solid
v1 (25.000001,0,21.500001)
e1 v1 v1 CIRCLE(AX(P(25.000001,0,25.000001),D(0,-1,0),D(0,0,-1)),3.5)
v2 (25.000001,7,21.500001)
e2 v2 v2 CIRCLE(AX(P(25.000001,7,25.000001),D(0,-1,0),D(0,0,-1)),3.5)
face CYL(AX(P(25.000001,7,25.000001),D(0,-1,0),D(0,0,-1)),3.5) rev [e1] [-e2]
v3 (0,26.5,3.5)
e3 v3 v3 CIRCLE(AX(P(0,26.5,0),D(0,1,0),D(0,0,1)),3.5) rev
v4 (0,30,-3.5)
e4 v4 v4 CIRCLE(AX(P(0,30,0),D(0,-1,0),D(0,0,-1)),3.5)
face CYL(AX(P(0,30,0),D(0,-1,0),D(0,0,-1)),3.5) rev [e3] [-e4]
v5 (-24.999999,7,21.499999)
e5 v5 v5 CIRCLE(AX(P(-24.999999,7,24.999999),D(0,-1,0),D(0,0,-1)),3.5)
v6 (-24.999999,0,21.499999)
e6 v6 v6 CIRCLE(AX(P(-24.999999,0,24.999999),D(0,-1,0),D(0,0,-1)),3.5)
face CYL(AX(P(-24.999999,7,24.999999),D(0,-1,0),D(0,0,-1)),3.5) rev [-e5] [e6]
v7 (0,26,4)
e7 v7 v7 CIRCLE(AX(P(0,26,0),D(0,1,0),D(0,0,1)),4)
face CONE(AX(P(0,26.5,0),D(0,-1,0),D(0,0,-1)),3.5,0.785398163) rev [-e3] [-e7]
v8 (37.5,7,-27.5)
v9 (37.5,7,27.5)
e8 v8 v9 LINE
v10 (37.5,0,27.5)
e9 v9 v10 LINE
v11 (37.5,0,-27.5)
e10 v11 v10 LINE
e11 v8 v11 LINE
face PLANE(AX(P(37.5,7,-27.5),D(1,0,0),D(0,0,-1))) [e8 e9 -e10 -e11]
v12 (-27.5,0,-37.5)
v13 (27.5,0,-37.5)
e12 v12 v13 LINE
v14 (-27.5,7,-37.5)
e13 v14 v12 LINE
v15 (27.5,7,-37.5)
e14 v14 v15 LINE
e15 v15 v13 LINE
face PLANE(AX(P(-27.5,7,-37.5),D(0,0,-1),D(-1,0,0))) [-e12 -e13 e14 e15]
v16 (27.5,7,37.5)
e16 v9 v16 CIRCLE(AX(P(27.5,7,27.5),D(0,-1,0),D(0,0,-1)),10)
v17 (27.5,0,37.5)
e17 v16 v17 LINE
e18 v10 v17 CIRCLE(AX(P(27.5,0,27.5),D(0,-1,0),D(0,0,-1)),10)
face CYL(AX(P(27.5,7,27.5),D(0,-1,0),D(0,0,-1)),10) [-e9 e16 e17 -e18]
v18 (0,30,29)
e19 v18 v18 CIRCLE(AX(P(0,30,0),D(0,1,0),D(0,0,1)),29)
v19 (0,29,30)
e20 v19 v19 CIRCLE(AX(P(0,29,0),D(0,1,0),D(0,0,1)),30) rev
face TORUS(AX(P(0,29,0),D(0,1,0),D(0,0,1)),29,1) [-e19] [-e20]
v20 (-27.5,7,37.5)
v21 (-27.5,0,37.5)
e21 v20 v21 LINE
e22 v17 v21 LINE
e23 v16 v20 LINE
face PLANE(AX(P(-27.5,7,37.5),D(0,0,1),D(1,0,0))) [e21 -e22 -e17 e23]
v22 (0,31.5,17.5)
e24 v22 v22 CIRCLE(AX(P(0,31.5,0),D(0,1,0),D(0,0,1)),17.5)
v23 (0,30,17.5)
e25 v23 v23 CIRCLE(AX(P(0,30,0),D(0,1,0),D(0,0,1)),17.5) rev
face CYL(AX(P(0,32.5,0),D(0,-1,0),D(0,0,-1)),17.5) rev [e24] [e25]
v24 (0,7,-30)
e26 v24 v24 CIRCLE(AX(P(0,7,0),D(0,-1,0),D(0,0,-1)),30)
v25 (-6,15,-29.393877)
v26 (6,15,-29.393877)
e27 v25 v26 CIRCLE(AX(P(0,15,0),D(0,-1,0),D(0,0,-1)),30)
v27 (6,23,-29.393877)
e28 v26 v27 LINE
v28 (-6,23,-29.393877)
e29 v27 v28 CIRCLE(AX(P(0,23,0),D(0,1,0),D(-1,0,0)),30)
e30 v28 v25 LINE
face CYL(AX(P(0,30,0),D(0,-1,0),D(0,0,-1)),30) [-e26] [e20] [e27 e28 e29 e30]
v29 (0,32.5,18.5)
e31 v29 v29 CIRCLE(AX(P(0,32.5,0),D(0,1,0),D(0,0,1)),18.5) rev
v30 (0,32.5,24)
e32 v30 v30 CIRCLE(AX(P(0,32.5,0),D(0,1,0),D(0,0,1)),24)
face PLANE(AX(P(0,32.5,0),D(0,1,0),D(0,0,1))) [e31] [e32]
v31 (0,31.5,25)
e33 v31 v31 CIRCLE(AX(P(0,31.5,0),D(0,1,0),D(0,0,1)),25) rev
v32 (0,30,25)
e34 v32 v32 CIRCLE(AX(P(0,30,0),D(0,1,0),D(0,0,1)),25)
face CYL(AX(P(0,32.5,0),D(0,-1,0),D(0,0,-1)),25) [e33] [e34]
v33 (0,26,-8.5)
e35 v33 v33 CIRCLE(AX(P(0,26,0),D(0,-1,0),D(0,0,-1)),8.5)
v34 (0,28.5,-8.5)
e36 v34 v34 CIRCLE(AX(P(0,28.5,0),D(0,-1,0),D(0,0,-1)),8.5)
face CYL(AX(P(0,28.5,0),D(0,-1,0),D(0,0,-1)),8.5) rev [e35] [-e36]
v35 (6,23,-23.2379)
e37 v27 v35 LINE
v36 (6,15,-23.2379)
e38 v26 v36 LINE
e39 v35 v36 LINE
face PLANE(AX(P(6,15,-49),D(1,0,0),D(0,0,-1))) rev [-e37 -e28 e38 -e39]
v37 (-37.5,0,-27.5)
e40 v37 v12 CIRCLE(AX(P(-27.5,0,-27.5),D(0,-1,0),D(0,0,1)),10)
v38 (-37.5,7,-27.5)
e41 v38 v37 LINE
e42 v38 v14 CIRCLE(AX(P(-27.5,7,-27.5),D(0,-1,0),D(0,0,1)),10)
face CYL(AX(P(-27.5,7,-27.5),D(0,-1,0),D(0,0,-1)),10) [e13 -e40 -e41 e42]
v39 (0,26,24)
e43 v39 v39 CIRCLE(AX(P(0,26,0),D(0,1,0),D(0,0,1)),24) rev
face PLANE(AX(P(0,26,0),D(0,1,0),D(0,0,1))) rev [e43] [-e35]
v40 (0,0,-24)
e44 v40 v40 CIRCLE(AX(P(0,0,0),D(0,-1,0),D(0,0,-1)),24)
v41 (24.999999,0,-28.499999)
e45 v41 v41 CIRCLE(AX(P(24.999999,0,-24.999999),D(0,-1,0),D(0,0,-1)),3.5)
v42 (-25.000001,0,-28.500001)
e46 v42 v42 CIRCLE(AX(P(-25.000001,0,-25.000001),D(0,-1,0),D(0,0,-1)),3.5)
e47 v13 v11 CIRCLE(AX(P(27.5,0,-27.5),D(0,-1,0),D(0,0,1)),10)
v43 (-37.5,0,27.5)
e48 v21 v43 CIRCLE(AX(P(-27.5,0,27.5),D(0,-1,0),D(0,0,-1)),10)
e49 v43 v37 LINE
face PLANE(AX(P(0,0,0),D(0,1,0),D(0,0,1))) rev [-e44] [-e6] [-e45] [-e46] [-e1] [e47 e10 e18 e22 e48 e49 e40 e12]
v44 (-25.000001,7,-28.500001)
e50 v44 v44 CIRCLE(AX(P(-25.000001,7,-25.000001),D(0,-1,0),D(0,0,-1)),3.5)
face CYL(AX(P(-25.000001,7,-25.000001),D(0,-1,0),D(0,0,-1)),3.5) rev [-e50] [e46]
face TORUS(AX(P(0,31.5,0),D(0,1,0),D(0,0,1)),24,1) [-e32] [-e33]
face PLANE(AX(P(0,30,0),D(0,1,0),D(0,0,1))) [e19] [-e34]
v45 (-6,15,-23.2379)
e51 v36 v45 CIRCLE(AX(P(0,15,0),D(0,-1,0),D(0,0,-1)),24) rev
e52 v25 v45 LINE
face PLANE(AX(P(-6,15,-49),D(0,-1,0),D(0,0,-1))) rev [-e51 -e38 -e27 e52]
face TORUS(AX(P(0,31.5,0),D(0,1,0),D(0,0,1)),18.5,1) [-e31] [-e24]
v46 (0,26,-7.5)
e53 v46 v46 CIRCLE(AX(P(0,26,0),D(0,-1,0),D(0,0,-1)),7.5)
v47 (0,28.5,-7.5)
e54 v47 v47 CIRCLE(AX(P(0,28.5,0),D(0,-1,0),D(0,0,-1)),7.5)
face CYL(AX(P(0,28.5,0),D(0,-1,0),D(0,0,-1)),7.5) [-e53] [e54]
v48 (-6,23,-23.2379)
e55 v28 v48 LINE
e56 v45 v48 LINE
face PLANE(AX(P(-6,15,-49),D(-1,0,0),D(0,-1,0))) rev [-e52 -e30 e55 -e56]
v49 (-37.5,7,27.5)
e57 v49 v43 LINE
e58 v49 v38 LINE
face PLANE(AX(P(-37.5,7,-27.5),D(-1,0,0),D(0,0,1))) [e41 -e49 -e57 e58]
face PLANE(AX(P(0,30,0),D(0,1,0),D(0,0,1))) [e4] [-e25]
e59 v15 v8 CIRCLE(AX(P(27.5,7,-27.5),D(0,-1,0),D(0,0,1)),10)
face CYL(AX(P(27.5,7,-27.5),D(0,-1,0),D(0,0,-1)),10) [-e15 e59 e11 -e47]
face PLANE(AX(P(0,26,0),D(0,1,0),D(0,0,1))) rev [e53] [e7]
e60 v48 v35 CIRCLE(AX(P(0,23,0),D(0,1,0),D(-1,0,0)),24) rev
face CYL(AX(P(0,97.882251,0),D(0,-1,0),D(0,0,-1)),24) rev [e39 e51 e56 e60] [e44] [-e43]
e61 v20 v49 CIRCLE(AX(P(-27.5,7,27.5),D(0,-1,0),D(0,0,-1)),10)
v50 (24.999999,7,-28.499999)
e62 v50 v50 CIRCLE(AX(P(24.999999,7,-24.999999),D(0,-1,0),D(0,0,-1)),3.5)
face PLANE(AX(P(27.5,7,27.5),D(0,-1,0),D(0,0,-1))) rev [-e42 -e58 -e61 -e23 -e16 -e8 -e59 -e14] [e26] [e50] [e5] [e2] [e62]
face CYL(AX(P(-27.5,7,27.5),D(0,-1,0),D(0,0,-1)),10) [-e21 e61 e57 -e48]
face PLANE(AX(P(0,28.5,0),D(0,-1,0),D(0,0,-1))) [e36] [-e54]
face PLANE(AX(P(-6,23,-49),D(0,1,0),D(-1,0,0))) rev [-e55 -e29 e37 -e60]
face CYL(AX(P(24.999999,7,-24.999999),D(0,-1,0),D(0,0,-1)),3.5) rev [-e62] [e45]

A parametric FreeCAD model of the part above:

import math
import FreeCAD as App
import Part
import Sketcher


def edges_at(feature, points):
    """Names of the edges that pass closest to the given points."""
    edges = feature.Shape.Edges
    near = lambda p: min(range(len(edges)), key=lambda i: edges[i].distToShape(Part.Vertex(*p))[0])
    return sorted({f"Edge{near(p) + 1}" for p in points})


def add_polygon(sketch, points):
    """Adds a closed chain of lines whose ends are joined by coincident constraints."""
    first, n = sketch.GeometryCount, len(points)
    for a, b in zip(points, points[1:] + points[:1]):
        sketch.addGeometry(Part.LineSegment(App.Vector(*a, 0), App.Vector(*b, 0)), False)
    for i in range(n):
        sketch.addConstraint(Sketcher.Constraint("Coincident", first + i, 2, first + (i + 1) % n, 1))

doc = App.newDocument("Part")
body = doc.addObject("PartDesign::Body", "Body")

# Sketch on XZ plane
sketch1 = doc.addObject("Sketcher::SketchObject", "Sketch")
body.addObject(sketch1)
sketch1.AttachmentSupport = (doc.XZ_Plane, [""])
sketch1.MapMode = "FlatFace"
sketch1.addGeometry(Part.Circle(App.Vector(0, 0, 0), App.Vector(0, 0, 1), 30), False)
sketch1.addConstraint([
    Sketcher.Constraint("Coincident", 0, 3, -1, 1),
    Sketcher.Constraint("Diameter", 0, 60.0),
])
pad1 = doc.addObject("PartDesign::Pad", "Pad")
body.addObject(pad1)
pad1.Profile = sketch1
pad1.Length = 30
pad1.Reversed = True

# Sketch on XZ plane
sketch2 = doc.addObject("Sketcher::SketchObject", "Sketch001")
body.addObject(sketch2)
sketch2.AttachmentSupport = (doc.XZ_Plane, [""])
sketch2.MapMode = "FlatFace"
sketch2.addGeometry([
    Part.LineSegment(App.Vector(-27.5, -37.5, 0), App.Vector(27.5, -37.5, 0)),  # 0
    Part.ArcOfCircle(Part.Circle(App.Vector(27.5, -27.5, 0), App.Vector(0, 0, 1), 10), math.radians(-90), math.radians(0)),  # 1
    Part.LineSegment(App.Vector(37.5, -27.5, 0), App.Vector(37.5, 27.5, 0)),  # 2
    Part.ArcOfCircle(Part.Circle(App.Vector(27.5, 27.5, 0), App.Vector(0, 0, 1), 10), math.radians(0), math.radians(90)),  # 3
    Part.LineSegment(App.Vector(27.5, 37.5, 0), App.Vector(-27.5, 37.5, 0)),  # 4
    Part.ArcOfCircle(Part.Circle(App.Vector(-27.5, 27.5, 0), App.Vector(0, 0, 1), 10), math.radians(90), math.radians(180)),  # 5
    Part.LineSegment(App.Vector(-37.5, 27.5, 0), App.Vector(-37.5, -27.5, 0)),  # 6
    Part.ArcOfCircle(Part.Circle(App.Vector(-27.5, -27.5, 0), App.Vector(0, 0, 1), 10), math.radians(180), math.radians(270)),  # 7
    Part.Circle(App.Vector(-25, -25, 0), App.Vector(0, 0, 1), 3.5),  # 8
    Part.Circle(App.Vector(25, -25, 0), App.Vector(0, 0, 1), 3.5),  # 9
    Part.Circle(App.Vector(-25, 25, 0), App.Vector(0, 0, 1), 3.5),  # 10
    Part.Circle(App.Vector(25, 25, 0), App.Vector(0, 0, 1), 3.5),  # 11
], False)
sketch2.addConstraint([
    Sketcher.Constraint("Tangent", 0, 2, 1, 1),
    Sketcher.Constraint("Tangent", 1, 2, 2, 1),
    Sketcher.Constraint("Tangent", 2, 2, 3, 1),
    Sketcher.Constraint("Tangent", 3, 2, 4, 1),
    Sketcher.Constraint("Tangent", 4, 2, 5, 1),
    Sketcher.Constraint("Tangent", 5, 2, 6, 1),
    Sketcher.Constraint("Tangent", 6, 2, 7, 1),
    Sketcher.Constraint("Tangent", 7, 2, 0, 1),
    Sketcher.Constraint("Horizontal", 0),
    Sketcher.Constraint("Vertical", 2),
    Sketcher.Constraint("Horizontal", 4),
    Sketcher.Constraint("Vertical", 6),
    Sketcher.Constraint("Equal", 1, 3),
    Sketcher.Constraint("Equal", 3, 5),
    Sketcher.Constraint("Equal", 5, 7),
    Sketcher.Constraint("Equal", 8, 9),
    Sketcher.Constraint("Equal", 9, 10),
    Sketcher.Constraint("Equal", 10, 11),
    Sketcher.Constraint("Symmetric", 1, 3, 5, 3, -1, 1),
    Sketcher.Constraint("Symmetric", 9, 3, 10, 3, -1, 1),
    Sketcher.Constraint("Symmetric", 8, 3, 11, 3, -1, 1),
    Sketcher.Constraint("Symmetric", 8, 3, 9, 3, -2),
    Sketcher.Constraint("Equal", 4, 2),
    Sketcher.Constraint("Diameter", 8, 7.0),
    Sketcher.Constraint("Radius", 1, 10.0),
    Sketcher.Constraint("DistanceX", 0, 1, 0, 2, 55.0),
    Sketcher.Constraint("DistanceX", 8, 3, -1, 1, 25.000001),
    Sketcher.Constraint("DistanceY", 8, 3, -1, 1, 25.000001),
])
pad2 = doc.addObject("PartDesign::Pad", "Pad001")
body.addObject(pad2)
pad2.Profile = sketch2
pad2.Length = 7
pad2.Reversed = True

# Sketch on XZ plane
sketch3 = doc.addObject("Sketcher::SketchObject", "Sketch002")
body.addObject(sketch3)
sketch3.AttachmentSupport = (doc.XZ_Plane, [""])
sketch3.MapMode = "FlatFace"
sketch3.addGeometry(Part.Circle(App.Vector(0, 0, 0), App.Vector(0, 0, 1), 24), False)
sketch3.addConstraint([
    Sketcher.Constraint("Coincident", 0, 3, -1, 1),
    Sketcher.Constraint("Diameter", 0, 48.0),
])
pocket1 = doc.addObject("PartDesign::Pocket", "Pocket")
body.addObject(pocket1)
pocket1.Profile = sketch3
pocket1.Length = 26

# Sketch on XZ plane
sketch4 = doc.addObject("Sketcher::SketchObject", "Sketch003")
body.addObject(sketch4)
sketch4.AttachmentSupport = (doc.XZ_Plane, [""])
sketch4.MapMode = "FlatFace"
sketch4.AttachmentOffset = App.Placement(App.Vector(0, 0, -26), App.Rotation())
sketch4.addGeometry(Part.Circle(App.Vector(0, 0, 0), App.Vector(0, 0, 1), 3.5), False)
sketch4.addConstraint([
    Sketcher.Constraint("Coincident", 0, 3, -1, 1),
    Sketcher.Constraint("Diameter", 0, 7.0),
])
pocket2 = doc.addObject("PartDesign::Pocket", "Pocket001")
body.addObject(pocket2)
pocket2.Profile = sketch4
pocket2.Type = "ThroughAll"

# Sketch on XZ plane
sketch5 = doc.addObject("Sketcher::SketchObject", "Sketch004")
body.addObject(sketch5)
sketch5.AttachmentSupport = (doc.XZ_Plane, [""])
sketch5.MapMode = "FlatFace"
sketch5.AttachmentOffset = App.Placement(App.Vector(0, 0, -26), App.Rotation())
sketch5.addGeometry([
    Part.Circle(App.Vector(0, 0, 0), App.Vector(0, 0, 1), 8),
    Part.Circle(App.Vector(0, 0, 0), App.Vector(0, 0, 1), 8),
], False)
sketch5.addConstraint([
    Sketcher.Constraint("Coincident", 0, 3, -1, 1),
    Sketcher.Constraint("Coincident", 1, 3, -1, 1),
    Sketcher.Constraint("Diameter", 0, 17.0),
    Sketcher.Constraint("Diameter", 1, 15.0),
])
pocket3 = doc.addObject("PartDesign::Pocket", "Pocket002")
body.addObject(pocket3)
pocket3.Profile = sketch5
pocket3.Length = 2.5
doc.recompute()

chamfer = doc.addObject("PartDesign::Chamfer", "Chamfer")
body.addObject(chamfer)
chamfer.Base = (pocket3, edges_at(pocket3, [(0, 26, 3.5)]))
chamfer.Size = 0.5

# Sketch on XY plane
sketch6 = doc.addObject("Sketcher::SketchObject", "Sketch005")
body.addObject(sketch6)
sketch6.AttachmentSupport = (doc.XY_Plane, [""])
sketch6.MapMode = "FlatFace"
add_polygon(sketch6, [(-6, 23), (-6, 15), (6, 15), (6, 23)])  # lines 0-3
sketch6.addConstraint([
    Sketcher.Constraint("Vertical", 0),
    Sketcher.Constraint("Horizontal", 1),
    Sketcher.Constraint("Vertical", 2),
    Sketcher.Constraint("Horizontal", 3),
    Sketcher.Constraint("DistanceX", 1, 1, 1, 2, 12.0),
    Sketcher.Constraint("DistanceY", 0, 2, 0, 1, 8.0),
    Sketcher.Constraint("DistanceX", 0, 2, -1, 1, 6.0),
    Sketcher.Constraint("DistanceY", -1, 1, 0, 2, 15.0),
])
pocket4 = doc.addObject("PartDesign::Pocket", "Pocket003")
body.addObject(pocket4)
pocket4.Profile = sketch6
pocket4.Length = 49

# Sketch on XZ plane
sketch7 = doc.addObject("Sketcher::SketchObject", "Sketch006")
body.addObject(sketch7)
sketch7.AttachmentSupport = (doc.XZ_Plane, [""])
sketch7.MapMode = "FlatFace"
sketch7.AttachmentOffset = App.Placement(App.Vector(0, 0, -30), App.Rotation())
sketch7.addGeometry([
    Part.Circle(App.Vector(0, 0, 0), App.Vector(0, 0, 1), 25),
    Part.Circle(App.Vector(0, 0, 0), App.Vector(0, 0, 1), 18),
], False)
sketch7.addConstraint([
    Sketcher.Constraint("Coincident", 0, 3, -1, 1),
    Sketcher.Constraint("Coincident", 1, 3, -1, 1),
    Sketcher.Constraint("Diameter", 0, 50.0),
    Sketcher.Constraint("Diameter", 1, 35.0),
])
pad3 = doc.addObject("PartDesign::Pad", "Pad002")
body.addObject(pad3)
pad3.Profile = sketch7
pad3.Length = 2.5
pad3.Reversed = True
doc.recompute()

fillet = doc.addObject("PartDesign::Fillet", "Fillet")
body.addObject(fillet)
fillet.Base = (pad3, edges_at(pad3, [(0, 30, -30), (0, 32.5, -25), (0, 32.5, -17.5)]))
fillet.Radius = 1

doc.recompute()
